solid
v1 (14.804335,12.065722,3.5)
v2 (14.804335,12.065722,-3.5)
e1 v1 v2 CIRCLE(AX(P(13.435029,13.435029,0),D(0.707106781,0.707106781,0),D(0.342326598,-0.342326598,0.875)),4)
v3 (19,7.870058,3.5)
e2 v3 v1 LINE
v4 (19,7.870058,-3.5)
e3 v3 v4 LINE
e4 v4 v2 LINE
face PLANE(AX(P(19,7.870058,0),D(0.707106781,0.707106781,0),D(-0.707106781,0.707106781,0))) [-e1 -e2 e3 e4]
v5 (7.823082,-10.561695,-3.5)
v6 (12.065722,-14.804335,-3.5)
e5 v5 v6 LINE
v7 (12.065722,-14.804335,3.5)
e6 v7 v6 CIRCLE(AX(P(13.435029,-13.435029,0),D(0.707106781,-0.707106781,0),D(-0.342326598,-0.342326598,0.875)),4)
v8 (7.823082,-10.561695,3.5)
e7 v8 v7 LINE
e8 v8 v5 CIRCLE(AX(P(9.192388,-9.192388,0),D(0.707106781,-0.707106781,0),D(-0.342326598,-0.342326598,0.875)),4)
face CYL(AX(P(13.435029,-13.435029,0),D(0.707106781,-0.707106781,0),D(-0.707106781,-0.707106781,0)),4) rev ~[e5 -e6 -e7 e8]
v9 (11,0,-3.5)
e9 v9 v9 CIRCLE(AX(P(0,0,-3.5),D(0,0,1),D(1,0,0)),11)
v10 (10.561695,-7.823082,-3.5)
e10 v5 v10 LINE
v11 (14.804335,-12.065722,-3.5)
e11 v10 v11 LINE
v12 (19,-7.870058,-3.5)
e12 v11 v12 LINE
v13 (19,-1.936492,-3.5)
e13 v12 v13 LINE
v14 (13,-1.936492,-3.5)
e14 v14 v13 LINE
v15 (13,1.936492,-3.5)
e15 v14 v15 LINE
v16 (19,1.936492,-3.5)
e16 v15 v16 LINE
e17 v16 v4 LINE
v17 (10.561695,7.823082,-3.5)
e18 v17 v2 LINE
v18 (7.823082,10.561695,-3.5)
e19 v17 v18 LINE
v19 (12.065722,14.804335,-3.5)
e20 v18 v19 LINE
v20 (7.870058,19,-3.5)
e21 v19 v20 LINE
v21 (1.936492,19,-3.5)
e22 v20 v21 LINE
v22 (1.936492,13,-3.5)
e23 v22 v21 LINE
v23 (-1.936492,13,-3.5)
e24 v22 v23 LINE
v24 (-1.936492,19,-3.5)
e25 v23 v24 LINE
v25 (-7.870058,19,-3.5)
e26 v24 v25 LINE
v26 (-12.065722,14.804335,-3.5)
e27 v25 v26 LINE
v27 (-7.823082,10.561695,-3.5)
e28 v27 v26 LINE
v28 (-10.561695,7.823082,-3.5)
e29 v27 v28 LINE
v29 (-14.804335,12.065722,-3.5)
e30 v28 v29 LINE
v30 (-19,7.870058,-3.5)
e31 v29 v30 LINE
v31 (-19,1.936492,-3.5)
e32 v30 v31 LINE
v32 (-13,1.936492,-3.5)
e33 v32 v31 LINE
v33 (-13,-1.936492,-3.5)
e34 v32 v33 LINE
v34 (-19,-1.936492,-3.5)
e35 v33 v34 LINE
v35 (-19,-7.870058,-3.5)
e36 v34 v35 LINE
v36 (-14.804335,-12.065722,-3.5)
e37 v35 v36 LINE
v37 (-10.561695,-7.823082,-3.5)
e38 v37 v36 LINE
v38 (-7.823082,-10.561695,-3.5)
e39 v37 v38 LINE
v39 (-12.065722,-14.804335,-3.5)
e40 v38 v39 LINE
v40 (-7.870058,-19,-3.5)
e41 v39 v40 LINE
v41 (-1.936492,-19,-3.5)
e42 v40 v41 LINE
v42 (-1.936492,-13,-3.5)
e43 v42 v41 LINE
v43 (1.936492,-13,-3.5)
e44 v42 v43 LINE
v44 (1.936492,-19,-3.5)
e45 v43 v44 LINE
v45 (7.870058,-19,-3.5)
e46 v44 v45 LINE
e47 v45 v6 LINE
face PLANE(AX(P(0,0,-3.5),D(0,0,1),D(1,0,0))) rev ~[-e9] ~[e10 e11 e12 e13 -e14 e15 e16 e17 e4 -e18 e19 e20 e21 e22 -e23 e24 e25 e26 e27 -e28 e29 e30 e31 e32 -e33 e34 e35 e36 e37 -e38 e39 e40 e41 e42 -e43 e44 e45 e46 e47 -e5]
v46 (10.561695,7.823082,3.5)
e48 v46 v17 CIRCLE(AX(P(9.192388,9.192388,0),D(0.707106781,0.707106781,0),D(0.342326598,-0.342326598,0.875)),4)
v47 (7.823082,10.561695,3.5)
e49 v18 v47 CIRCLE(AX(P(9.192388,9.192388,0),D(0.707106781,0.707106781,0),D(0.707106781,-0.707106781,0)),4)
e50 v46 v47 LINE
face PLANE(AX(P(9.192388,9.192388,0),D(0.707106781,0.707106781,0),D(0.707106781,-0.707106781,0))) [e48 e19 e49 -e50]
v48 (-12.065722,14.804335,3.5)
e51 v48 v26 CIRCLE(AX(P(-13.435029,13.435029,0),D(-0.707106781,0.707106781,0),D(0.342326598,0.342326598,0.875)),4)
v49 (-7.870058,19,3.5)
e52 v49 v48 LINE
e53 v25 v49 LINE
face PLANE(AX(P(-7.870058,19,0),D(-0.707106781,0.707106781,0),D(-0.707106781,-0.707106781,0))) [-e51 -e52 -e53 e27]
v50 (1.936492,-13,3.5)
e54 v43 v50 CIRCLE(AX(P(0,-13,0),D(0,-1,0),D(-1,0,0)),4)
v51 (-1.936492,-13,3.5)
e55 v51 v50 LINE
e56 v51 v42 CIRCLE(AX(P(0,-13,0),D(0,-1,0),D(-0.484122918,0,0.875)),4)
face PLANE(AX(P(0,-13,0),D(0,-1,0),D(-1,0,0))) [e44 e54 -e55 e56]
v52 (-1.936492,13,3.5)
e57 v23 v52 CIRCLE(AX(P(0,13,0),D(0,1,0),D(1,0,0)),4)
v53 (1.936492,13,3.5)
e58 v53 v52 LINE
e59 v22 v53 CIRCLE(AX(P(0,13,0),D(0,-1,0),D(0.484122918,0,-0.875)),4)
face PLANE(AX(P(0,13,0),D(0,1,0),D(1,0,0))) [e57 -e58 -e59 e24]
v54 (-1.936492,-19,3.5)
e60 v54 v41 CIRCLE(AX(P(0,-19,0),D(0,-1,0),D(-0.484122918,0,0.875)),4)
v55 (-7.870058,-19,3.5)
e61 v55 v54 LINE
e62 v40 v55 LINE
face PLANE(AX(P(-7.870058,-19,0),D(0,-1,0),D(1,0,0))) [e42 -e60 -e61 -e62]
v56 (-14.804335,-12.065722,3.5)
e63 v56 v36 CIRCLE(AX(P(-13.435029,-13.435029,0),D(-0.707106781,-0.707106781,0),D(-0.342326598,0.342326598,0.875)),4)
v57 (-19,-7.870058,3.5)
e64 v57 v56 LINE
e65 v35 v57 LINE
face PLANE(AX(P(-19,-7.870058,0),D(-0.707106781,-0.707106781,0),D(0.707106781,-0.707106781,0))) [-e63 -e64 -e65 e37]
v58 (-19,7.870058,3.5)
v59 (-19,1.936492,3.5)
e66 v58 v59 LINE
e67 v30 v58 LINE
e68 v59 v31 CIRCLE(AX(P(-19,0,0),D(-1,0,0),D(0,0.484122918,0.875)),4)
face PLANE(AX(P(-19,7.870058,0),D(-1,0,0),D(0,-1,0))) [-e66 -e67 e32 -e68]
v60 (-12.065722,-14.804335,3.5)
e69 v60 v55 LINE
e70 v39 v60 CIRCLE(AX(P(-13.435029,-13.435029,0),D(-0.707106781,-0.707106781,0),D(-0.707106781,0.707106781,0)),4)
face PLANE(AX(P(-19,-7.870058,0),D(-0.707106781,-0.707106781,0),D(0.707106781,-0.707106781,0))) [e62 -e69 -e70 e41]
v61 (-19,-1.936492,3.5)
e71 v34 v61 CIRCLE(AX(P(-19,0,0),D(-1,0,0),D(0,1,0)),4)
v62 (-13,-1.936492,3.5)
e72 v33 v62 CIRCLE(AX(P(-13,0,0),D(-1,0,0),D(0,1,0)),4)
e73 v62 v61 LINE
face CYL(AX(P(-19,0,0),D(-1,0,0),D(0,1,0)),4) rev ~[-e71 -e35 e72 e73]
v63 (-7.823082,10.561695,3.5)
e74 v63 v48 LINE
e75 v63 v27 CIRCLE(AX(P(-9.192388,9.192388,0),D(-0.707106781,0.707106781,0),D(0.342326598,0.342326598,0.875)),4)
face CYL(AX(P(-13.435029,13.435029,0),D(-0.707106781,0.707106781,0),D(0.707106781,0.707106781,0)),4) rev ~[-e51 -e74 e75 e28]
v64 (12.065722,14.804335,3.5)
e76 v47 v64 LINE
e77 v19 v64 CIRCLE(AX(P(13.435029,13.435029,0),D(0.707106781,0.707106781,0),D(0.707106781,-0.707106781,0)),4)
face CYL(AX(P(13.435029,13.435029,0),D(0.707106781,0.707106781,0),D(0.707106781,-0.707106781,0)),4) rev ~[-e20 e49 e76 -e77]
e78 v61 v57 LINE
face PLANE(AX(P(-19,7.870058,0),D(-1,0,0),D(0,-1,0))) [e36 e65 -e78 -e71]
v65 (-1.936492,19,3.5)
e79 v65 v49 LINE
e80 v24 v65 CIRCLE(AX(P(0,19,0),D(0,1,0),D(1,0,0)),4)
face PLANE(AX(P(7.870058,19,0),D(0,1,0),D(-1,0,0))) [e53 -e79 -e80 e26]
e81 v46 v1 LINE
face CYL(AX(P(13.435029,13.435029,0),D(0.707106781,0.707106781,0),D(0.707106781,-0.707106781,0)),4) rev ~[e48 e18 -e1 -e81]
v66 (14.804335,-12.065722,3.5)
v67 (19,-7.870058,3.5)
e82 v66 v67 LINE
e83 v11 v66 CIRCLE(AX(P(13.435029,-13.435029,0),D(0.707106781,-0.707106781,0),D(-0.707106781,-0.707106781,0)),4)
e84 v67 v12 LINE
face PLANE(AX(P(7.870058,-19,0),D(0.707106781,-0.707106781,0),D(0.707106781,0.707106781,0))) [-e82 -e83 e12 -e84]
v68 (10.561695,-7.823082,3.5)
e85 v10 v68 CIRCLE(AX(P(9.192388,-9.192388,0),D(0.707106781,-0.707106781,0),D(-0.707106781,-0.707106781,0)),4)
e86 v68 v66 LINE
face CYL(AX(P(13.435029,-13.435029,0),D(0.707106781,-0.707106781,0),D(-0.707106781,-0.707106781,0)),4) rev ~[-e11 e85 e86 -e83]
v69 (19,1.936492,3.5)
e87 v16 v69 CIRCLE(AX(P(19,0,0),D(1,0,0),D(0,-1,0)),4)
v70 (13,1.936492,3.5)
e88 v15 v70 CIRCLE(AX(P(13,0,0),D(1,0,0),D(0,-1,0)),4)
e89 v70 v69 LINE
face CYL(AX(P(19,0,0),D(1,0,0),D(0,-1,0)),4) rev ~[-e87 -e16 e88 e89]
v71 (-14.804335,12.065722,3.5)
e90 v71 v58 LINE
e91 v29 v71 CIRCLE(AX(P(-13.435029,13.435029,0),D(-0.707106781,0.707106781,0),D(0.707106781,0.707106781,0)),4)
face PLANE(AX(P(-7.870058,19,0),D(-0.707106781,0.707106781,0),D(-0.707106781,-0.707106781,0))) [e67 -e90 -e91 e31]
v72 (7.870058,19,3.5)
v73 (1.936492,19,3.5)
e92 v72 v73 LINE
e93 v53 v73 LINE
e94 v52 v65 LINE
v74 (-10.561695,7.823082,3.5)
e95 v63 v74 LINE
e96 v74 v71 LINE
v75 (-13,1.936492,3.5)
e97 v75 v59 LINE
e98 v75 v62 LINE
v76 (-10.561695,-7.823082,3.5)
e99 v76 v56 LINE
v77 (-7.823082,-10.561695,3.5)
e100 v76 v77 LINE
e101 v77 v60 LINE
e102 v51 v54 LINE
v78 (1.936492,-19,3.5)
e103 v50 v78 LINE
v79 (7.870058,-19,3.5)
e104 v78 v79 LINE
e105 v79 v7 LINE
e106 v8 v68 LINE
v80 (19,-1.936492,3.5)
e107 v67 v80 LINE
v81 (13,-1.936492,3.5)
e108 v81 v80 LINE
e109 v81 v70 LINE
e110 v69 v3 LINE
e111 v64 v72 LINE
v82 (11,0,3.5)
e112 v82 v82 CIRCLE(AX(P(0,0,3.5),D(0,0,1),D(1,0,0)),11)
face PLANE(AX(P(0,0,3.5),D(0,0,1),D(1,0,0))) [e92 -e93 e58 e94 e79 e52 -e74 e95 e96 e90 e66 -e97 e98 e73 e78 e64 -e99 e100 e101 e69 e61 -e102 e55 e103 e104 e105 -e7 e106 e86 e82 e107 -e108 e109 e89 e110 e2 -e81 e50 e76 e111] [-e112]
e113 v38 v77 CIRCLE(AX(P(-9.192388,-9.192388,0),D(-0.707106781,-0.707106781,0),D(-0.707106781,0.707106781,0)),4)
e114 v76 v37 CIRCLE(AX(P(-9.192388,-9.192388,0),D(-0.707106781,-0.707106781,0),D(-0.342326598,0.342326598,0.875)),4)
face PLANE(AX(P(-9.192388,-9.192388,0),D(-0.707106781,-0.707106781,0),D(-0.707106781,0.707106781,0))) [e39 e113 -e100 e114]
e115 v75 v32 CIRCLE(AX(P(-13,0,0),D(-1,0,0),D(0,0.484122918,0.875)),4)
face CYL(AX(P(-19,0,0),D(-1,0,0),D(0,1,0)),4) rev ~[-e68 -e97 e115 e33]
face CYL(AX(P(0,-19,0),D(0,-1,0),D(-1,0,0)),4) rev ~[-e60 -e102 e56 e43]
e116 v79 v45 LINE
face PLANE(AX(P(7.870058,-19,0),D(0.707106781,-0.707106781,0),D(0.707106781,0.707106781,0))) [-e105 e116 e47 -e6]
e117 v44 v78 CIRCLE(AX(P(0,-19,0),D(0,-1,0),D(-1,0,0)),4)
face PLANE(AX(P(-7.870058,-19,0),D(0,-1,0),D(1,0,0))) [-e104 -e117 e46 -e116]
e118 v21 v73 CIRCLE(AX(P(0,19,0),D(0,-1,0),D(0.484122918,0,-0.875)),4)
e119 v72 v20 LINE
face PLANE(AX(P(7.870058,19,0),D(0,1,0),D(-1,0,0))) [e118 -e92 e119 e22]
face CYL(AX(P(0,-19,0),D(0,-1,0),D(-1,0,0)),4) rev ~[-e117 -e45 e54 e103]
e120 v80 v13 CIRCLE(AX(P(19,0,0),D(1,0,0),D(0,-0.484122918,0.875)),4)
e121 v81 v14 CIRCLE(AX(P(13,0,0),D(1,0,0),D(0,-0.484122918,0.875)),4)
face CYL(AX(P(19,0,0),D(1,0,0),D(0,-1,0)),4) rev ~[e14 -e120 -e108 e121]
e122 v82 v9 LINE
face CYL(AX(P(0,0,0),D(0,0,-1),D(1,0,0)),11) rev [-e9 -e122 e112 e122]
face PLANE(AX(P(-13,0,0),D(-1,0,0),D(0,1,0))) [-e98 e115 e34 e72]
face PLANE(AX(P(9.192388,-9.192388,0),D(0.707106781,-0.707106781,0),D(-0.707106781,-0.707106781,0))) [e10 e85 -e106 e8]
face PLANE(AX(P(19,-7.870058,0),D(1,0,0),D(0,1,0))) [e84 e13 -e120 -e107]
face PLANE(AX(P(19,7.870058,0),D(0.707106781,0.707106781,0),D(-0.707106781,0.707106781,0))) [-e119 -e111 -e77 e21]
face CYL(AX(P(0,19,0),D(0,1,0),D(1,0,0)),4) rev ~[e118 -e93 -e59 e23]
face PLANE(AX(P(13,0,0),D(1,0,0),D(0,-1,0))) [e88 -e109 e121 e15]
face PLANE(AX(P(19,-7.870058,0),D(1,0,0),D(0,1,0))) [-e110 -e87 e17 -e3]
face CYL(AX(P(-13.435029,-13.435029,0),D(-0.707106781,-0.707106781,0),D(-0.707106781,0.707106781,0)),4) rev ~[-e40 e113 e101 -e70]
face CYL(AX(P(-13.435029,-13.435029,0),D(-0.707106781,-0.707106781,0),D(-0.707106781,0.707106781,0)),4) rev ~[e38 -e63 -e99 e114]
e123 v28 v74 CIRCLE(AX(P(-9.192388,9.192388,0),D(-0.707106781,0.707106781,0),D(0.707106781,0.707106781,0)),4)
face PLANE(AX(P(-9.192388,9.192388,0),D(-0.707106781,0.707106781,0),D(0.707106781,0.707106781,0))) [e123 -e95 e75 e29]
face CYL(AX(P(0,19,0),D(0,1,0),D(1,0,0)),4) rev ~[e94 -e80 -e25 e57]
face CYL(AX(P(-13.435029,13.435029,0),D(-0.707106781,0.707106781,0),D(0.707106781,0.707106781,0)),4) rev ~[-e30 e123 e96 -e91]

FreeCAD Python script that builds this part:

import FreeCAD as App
import Part
import Sketcher

V = App.Vector

doc = App.newDocument("Part")
body = doc.addObject("PartDesign::Body", "Body")

# Sketch on XY plane
sketch1 = body.newObject("Sketcher::SketchObject", "Sketch")
sketch1.AttachmentSupport = (doc.getObject("XY_Plane"), [""])
sketch1.MapMode = "FlatFace"
sketch1.addGeometry([
    Part.LineSegment(V(8, 19, 0), V(-8, 19, 0)),  # 0
    Part.LineSegment(V(-8, 19, 0), V(-19, 8, 0)),  # 1
    Part.LineSegment(V(-19, 8, 0), V(-19, -8, 0)),  # 2
    Part.LineSegment(V(-19, -8, 0), V(-8, -19, 0)),  # 3
    Part.LineSegment(V(-8, -19, 0), V(8, -19, 0)),  # 4
    Part.LineSegment(V(8, -19, 0), V(19, -8, 0)),  # 5
    Part.LineSegment(V(19, -8, 0), V(19, 8, 0)),  # 6
    Part.LineSegment(V(19, 8, 0), V(8, 19, 0)),  # 7
    Part.Circle(V(0, 0, 0), V(0, 0, 1), 11),  # 8
], False)
sketch1.addConstraint([
    Sketcher.Constraint("Coincident", 0, 2, 1, 1),
    Sketcher.Constraint("Coincident", 1, 2, 2, 1),
    Sketcher.Constraint("Coincident", 2, 2, 3, 1),
    Sketcher.Constraint("Coincident", 3, 2, 4, 1),
    Sketcher.Constraint("Coincident", 4, 2, 5, 1),
    Sketcher.Constraint("Coincident", 5, 2, 6, 1),
    Sketcher.Constraint("Coincident", 6, 2, 7, 1),
    Sketcher.Constraint("Coincident", 7, 2, 0, 1),
    Sketcher.Constraint("Horizontal", 0),
    Sketcher.Constraint("Vertical", 2),
    Sketcher.Constraint("Horizontal", 4),
    Sketcher.Constraint("Vertical", 6),
    Sketcher.Constraint("Coincident", 8, 3, -1, 1),
    Sketcher.Constraint("Symmetric", 0, 2, 4, 2, -1, 1),
    Sketcher.Constraint("Symmetric", 1, 2, 5, 2, -1, 1),
    Sketcher.Constraint("Perpendicular", 1, 3),
    Sketcher.Constraint("Perpendicular", 5, 7),
    Sketcher.Constraint("Horizontal", 2, 2, 5, 2),
    Sketcher.Constraint("Horizontal", 1, 2, 6, 2),
    Sketcher.Constraint("Vertical", 0, 2, 3, 2),
    Sketcher.Constraint("Equal", 4, 2),
    Sketcher.Constraint("Diameter", 8, 22.0),
    Sketcher.Constraint("DistanceY", -1, 1, 0, 2, 19.0),
    Sketcher.Constraint("DistanceX", 0, 2, 0, 1, 15.740115),
])
pad1 = body.newObject("PartDesign::Pad", "Pad")
pad1.Profile = sketch1
pad1.Length = 7
pad1.Midplane = True

# Sketch on XZ plane
sketch2 = body.newObject("Sketcher::SketchObject", "Sketch001")
sketch2.AttachmentSupport = (doc.getObject("XZ_Plane"), [""])
sketch2.MapMode = "FlatFace"
sketch2.AttachmentOffset = App.Placement(V(0, 0, 19), App.Rotation())
sketch2.addGeometry(Part.Circle(V(0, 0, 0), V(0, 0, 1), 4), False)
sketch2.addConstraint([
    Sketcher.Constraint("Coincident", 0, 3, -1, 1),
    Sketcher.Constraint("Diameter", 0, 8.0),
])
pocket1 = body.newObject("PartDesign::Pocket", "Pocket")
pocket1.Profile = sketch2
pocket1.Length = 6
doc.recompute()

polarpattern = body.newObject("PartDesign::PolarPattern", "PolarPattern")
polarpattern.Originals = [pocket1]
polarpattern.Axis = (doc.getObject("Z_Axis"), [""])
polarpattern.Angle = 360
polarpattern.Occurrences = 8
body.Tip = polarpattern

doc.recompute()
